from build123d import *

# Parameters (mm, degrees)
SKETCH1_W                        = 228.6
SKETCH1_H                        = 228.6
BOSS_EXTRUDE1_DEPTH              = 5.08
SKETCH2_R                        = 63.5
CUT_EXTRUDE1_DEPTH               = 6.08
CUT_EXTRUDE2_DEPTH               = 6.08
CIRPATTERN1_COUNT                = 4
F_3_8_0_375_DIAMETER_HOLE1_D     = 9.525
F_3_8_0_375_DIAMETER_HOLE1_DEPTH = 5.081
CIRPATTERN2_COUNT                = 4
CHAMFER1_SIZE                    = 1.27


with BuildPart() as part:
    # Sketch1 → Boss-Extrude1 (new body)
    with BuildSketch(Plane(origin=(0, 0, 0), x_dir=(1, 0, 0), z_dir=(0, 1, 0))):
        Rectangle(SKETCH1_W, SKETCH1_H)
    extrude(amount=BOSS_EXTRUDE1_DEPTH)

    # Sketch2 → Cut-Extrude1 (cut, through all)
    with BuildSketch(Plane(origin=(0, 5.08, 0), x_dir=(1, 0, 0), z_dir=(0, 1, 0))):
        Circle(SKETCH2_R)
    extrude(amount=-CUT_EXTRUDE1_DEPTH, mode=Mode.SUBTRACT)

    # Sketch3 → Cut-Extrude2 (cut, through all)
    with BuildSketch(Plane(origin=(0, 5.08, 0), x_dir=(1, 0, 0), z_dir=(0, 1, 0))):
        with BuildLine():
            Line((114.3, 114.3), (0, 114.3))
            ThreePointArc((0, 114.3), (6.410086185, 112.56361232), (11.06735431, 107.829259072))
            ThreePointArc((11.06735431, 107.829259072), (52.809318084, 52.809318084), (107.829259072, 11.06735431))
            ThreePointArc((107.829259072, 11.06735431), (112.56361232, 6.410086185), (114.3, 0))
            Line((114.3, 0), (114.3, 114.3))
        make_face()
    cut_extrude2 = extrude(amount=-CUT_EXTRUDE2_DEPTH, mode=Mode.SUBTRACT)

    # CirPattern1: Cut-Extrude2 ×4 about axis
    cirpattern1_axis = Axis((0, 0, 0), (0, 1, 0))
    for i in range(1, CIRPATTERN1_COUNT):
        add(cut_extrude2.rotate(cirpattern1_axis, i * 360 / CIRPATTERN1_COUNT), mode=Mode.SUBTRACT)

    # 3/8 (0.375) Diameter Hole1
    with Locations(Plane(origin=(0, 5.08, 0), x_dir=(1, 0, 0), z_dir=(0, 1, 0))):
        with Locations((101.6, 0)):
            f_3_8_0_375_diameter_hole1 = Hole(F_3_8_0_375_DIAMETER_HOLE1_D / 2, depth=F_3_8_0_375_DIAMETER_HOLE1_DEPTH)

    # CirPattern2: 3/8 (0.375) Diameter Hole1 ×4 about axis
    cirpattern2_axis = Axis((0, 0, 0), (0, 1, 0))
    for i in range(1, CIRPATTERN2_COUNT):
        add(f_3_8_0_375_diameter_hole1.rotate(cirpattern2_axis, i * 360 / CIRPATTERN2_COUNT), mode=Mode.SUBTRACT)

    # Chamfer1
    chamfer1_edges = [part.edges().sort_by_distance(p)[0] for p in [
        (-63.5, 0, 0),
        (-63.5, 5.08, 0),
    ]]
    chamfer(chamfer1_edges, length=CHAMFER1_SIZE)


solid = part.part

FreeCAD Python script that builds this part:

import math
import FreeCAD as App
import Part
import Sketcher

V = App.Vector
Q = App.Units.Quantity


def edges_at(feature, points):
    """Names of the edges that pass closest to the given points."""
    edges = feature.Shape.Edges
    near = lambda p: min(range(len(edges)), key=lambda i: edges[i].distToShape(Part.Vertex(*p))[0])
    return sorted({f"Edge{near(p) + 1}" for p in points})


def add_polygon(sketch, points):
    """Adds a closed chain of lines whose ends are joined by coincident constraints."""
    first, n = sketch.GeometryCount, len(points)
    for a, b in zip(points, points[1:] + points[:1]):
        sketch.addGeometry(Part.LineSegment(App.Vector(*a, 0), App.Vector(*b, 0)), False)
    for i in range(n):
        sketch.addConstraint(Sketcher.Constraint("Coincident", first + i, 2, first + (i + 1) % n, 1))

doc = App.newDocument("Part")
body = doc.addObject("PartDesign::Body", "Body")

# Sketch on XZ plane
sketch1 = body.newObject("Sketcher::SketchObject", "Sketch")
sketch1.AttachmentSupport = (doc.getObject("XZ_Plane"), [""])
sketch1.MapMode = "FlatFace"
add_polygon(sketch1, [(-114.3, -114.3), (-114.3, 114.3), (114.3, 114.3), (114.3, -114.3)])  # lines 0-3
sketch1.addConstraint(Sketcher.Constraint("Vertical", 0))
sketch1.addConstraint(Sketcher.Constraint("Horizontal", 1))
sketch1.addConstraint(Sketcher.Constraint("Vertical", 2))
sketch1.addConstraint(Sketcher.Constraint("Horizontal", 3))
sketch1.addConstraint(Sketcher.Constraint("Symmetric", 0, 2, 2, 2, -1, 1))
sketch1.addConstraint(Sketcher.Constraint("Equal", 3, 0))
sketch1.addConstraint(Sketcher.Constraint("DistanceX", 1, 1, 1, 2, Q("9 in")))
pad1 = body.newObject("PartDesign::Pad", "Pad")
pad1.Profile = sketch1
pad1.Length = Q("0.2 in")
pad1.Reversed = True

# Sketch on XZ plane
sketch2 = body.newObject("Sketcher::SketchObject", "Sketch001")
sketch2.AttachmentSupport = (doc.getObject("XZ_Plane"), [""])
sketch2.MapMode = "FlatFace"
sketch2.AttachmentOffset = App.Placement(V(0, 0, -0.2 * 25.4), App.Rotation())
sketch2.addGeometry(Part.Circle(V(0, 0, 0), V(0, 0, 1), 63.5), False)
sketch2.addConstraint(Sketcher.Constraint("Coincident", 0, 3, -1, 1))
sketch2.addConstraint(Sketcher.Constraint("Diameter", 0, Q("5 in")))
pocket1 = body.newObject("PartDesign::Pocket", "Pocket")
pocket1.Profile = sketch2
pocket1.Type = "ThroughAll"
pocket1.Reversed = True

# Sketch on XZ plane
sketch3 = body.newObject("Sketcher::SketchObject", "Sketch002")
sketch3.AttachmentSupport = (doc.getObject("XZ_Plane"), [""])
sketch3.MapMode = "FlatFace"
sketch3.AttachmentOffset = App.Placement(V(0, 0, -0.2 * 25.4), App.Rotation())
sketch3.addGeometry(Part.LineSegment(V(114.3, -114.3, 0), V(0, -114.3, 0)), False)
sketch3.addGeometry(Part.ArcOfCircle(Part.Circle(V(0, -101.6, 0), V(0, 0, 1), 12.7), math.radians(-90), math.radians(-29.37298)), False)
sketch3.addGeometry(Part.ArcOfCircle(Part.Circle(V(232.414441, -232.414441, 0), V(0, 0, 1), 254), math.radians(119.37298), math.radians(150.62702)), False)
sketch3.addGeometry(Part.ArcOfCircle(Part.Circle(V(101.6, 0, 0), V(0, 0, 1), 12.7), math.radians(-60.62702), math.radians(0)), False)
sketch3.addGeometry(Part.LineSegment(V(114.3, 0, 0), V(114.3, -114.3, 0)), False)
sketch3.addConstraint(Sketcher.Constraint("Tangent", 0, 2, 1, 1))
sketch3.addConstraint(Sketcher.Constraint("Tangent", 1, 2, 2, 2))
sketch3.addConstraint(Sketcher.Constraint("Tangent", 2, 1, 3, 1))
sketch3.addConstraint(Sketcher.Constraint("Tangent", 3, 2, 4, 1))
sketch3.addConstraint(Sketcher.Constraint("Coincident", 4, 2, 0, 1))
sketch3.addConstraint(Sketcher.Constraint("Horizontal", 0))
sketch3.addConstraint(Sketcher.Constraint("Vertical", 4))
sketch3.addConstraint(Sketcher.Constraint("Equal", 1, 3))
sketch3.addConstraint(Sketcher.Constraint("PointOnObject", 1, 3, -2))
sketch3.addConstraint(Sketcher.Constraint("PointOnObject", 3, 3, -1))
sketch3.addConstraint(Sketcher.Constraint("Equal", 0, 4))
sketch3.addConstraint(Sketcher.Constraint("Radius", 2, Q("10 in")))
sketch3.addConstraint(Sketcher.Constraint("Radius", 1, Q("0.5 in")))
sketch3.addConstraint(Sketcher.Constraint("DistanceX", 0, 2, 0, 1, Q("4.5 in")))
pocket2 = body.newObject("PartDesign::Pocket", "Pocket001")
pocket2.Profile = sketch3
pocket2.Type = "ThroughAll"
pocket2.Reversed = True
doc.recompute()

polarpattern = body.newObject("PartDesign::PolarPattern", "PolarPattern")
polarpattern.Originals = [pocket2]
polarpattern.Axis = (doc.getObject("Y_Axis"), [""])
polarpattern.Angle = 360
polarpattern.Occurrences = 4
body.Tip = polarpattern

# Sketch on XZ plane
sketch4 = body.newObject("Sketcher::SketchObject", "Sketch003")
sketch4.AttachmentSupport = (doc.getObject("XZ_Plane"), [""])
sketch4.MapMode = "FlatFace"
sketch4.AttachmentOffset = App.Placement(V(0, 0, -0.2 * 25.4), App.Rotation())
sketch4.addGeometry(Part.Circle(V(101.6, 0, 0), V(0, 0, 1), 4.7625), False)
sketch4.addConstraint(Sketcher.Constraint("PointOnObject", 0, 3, -1))
sketch4.addConstraint(Sketcher.Constraint("Diameter", 0, Q("0.375 in")))
sketch4.addConstraint(Sketcher.Constraint("DistanceX", -1, 1, 0, 3, Q("4 in")))
doc.recompute()
hole = body.newObject("PartDesign::Hole", "Hole")
hole.Profile = sketch4
hole.ThreadType = "None"
hole.Diameter = Q("0.375 in")
hole.DepthType = "Dimension"
hole.Depth = 5.081
hole.DrillPoint = "Flat"
hole.Reversed = True
doc.recompute()

polarpattern2 = body.newObject("PartDesign::PolarPattern", "PolarPattern001")
polarpattern2.Originals = [hole]
polarpattern2.Axis = (doc.getObject("Y_Axis"), [""])
polarpattern2.Angle = 360
polarpattern2.Occurrences = 4
body.Tip = polarpattern2
doc.recompute()

chamfer = body.newObject("PartDesign::Chamfer", "Chamfer")
chamfer.Base = (polarpattern2, edges_at(polarpattern2, [(-63.5, 0, 0), (-63.5, 5.08, 0)]))
chamfer.Size = Q("0.05 in")

doc.recompute()
